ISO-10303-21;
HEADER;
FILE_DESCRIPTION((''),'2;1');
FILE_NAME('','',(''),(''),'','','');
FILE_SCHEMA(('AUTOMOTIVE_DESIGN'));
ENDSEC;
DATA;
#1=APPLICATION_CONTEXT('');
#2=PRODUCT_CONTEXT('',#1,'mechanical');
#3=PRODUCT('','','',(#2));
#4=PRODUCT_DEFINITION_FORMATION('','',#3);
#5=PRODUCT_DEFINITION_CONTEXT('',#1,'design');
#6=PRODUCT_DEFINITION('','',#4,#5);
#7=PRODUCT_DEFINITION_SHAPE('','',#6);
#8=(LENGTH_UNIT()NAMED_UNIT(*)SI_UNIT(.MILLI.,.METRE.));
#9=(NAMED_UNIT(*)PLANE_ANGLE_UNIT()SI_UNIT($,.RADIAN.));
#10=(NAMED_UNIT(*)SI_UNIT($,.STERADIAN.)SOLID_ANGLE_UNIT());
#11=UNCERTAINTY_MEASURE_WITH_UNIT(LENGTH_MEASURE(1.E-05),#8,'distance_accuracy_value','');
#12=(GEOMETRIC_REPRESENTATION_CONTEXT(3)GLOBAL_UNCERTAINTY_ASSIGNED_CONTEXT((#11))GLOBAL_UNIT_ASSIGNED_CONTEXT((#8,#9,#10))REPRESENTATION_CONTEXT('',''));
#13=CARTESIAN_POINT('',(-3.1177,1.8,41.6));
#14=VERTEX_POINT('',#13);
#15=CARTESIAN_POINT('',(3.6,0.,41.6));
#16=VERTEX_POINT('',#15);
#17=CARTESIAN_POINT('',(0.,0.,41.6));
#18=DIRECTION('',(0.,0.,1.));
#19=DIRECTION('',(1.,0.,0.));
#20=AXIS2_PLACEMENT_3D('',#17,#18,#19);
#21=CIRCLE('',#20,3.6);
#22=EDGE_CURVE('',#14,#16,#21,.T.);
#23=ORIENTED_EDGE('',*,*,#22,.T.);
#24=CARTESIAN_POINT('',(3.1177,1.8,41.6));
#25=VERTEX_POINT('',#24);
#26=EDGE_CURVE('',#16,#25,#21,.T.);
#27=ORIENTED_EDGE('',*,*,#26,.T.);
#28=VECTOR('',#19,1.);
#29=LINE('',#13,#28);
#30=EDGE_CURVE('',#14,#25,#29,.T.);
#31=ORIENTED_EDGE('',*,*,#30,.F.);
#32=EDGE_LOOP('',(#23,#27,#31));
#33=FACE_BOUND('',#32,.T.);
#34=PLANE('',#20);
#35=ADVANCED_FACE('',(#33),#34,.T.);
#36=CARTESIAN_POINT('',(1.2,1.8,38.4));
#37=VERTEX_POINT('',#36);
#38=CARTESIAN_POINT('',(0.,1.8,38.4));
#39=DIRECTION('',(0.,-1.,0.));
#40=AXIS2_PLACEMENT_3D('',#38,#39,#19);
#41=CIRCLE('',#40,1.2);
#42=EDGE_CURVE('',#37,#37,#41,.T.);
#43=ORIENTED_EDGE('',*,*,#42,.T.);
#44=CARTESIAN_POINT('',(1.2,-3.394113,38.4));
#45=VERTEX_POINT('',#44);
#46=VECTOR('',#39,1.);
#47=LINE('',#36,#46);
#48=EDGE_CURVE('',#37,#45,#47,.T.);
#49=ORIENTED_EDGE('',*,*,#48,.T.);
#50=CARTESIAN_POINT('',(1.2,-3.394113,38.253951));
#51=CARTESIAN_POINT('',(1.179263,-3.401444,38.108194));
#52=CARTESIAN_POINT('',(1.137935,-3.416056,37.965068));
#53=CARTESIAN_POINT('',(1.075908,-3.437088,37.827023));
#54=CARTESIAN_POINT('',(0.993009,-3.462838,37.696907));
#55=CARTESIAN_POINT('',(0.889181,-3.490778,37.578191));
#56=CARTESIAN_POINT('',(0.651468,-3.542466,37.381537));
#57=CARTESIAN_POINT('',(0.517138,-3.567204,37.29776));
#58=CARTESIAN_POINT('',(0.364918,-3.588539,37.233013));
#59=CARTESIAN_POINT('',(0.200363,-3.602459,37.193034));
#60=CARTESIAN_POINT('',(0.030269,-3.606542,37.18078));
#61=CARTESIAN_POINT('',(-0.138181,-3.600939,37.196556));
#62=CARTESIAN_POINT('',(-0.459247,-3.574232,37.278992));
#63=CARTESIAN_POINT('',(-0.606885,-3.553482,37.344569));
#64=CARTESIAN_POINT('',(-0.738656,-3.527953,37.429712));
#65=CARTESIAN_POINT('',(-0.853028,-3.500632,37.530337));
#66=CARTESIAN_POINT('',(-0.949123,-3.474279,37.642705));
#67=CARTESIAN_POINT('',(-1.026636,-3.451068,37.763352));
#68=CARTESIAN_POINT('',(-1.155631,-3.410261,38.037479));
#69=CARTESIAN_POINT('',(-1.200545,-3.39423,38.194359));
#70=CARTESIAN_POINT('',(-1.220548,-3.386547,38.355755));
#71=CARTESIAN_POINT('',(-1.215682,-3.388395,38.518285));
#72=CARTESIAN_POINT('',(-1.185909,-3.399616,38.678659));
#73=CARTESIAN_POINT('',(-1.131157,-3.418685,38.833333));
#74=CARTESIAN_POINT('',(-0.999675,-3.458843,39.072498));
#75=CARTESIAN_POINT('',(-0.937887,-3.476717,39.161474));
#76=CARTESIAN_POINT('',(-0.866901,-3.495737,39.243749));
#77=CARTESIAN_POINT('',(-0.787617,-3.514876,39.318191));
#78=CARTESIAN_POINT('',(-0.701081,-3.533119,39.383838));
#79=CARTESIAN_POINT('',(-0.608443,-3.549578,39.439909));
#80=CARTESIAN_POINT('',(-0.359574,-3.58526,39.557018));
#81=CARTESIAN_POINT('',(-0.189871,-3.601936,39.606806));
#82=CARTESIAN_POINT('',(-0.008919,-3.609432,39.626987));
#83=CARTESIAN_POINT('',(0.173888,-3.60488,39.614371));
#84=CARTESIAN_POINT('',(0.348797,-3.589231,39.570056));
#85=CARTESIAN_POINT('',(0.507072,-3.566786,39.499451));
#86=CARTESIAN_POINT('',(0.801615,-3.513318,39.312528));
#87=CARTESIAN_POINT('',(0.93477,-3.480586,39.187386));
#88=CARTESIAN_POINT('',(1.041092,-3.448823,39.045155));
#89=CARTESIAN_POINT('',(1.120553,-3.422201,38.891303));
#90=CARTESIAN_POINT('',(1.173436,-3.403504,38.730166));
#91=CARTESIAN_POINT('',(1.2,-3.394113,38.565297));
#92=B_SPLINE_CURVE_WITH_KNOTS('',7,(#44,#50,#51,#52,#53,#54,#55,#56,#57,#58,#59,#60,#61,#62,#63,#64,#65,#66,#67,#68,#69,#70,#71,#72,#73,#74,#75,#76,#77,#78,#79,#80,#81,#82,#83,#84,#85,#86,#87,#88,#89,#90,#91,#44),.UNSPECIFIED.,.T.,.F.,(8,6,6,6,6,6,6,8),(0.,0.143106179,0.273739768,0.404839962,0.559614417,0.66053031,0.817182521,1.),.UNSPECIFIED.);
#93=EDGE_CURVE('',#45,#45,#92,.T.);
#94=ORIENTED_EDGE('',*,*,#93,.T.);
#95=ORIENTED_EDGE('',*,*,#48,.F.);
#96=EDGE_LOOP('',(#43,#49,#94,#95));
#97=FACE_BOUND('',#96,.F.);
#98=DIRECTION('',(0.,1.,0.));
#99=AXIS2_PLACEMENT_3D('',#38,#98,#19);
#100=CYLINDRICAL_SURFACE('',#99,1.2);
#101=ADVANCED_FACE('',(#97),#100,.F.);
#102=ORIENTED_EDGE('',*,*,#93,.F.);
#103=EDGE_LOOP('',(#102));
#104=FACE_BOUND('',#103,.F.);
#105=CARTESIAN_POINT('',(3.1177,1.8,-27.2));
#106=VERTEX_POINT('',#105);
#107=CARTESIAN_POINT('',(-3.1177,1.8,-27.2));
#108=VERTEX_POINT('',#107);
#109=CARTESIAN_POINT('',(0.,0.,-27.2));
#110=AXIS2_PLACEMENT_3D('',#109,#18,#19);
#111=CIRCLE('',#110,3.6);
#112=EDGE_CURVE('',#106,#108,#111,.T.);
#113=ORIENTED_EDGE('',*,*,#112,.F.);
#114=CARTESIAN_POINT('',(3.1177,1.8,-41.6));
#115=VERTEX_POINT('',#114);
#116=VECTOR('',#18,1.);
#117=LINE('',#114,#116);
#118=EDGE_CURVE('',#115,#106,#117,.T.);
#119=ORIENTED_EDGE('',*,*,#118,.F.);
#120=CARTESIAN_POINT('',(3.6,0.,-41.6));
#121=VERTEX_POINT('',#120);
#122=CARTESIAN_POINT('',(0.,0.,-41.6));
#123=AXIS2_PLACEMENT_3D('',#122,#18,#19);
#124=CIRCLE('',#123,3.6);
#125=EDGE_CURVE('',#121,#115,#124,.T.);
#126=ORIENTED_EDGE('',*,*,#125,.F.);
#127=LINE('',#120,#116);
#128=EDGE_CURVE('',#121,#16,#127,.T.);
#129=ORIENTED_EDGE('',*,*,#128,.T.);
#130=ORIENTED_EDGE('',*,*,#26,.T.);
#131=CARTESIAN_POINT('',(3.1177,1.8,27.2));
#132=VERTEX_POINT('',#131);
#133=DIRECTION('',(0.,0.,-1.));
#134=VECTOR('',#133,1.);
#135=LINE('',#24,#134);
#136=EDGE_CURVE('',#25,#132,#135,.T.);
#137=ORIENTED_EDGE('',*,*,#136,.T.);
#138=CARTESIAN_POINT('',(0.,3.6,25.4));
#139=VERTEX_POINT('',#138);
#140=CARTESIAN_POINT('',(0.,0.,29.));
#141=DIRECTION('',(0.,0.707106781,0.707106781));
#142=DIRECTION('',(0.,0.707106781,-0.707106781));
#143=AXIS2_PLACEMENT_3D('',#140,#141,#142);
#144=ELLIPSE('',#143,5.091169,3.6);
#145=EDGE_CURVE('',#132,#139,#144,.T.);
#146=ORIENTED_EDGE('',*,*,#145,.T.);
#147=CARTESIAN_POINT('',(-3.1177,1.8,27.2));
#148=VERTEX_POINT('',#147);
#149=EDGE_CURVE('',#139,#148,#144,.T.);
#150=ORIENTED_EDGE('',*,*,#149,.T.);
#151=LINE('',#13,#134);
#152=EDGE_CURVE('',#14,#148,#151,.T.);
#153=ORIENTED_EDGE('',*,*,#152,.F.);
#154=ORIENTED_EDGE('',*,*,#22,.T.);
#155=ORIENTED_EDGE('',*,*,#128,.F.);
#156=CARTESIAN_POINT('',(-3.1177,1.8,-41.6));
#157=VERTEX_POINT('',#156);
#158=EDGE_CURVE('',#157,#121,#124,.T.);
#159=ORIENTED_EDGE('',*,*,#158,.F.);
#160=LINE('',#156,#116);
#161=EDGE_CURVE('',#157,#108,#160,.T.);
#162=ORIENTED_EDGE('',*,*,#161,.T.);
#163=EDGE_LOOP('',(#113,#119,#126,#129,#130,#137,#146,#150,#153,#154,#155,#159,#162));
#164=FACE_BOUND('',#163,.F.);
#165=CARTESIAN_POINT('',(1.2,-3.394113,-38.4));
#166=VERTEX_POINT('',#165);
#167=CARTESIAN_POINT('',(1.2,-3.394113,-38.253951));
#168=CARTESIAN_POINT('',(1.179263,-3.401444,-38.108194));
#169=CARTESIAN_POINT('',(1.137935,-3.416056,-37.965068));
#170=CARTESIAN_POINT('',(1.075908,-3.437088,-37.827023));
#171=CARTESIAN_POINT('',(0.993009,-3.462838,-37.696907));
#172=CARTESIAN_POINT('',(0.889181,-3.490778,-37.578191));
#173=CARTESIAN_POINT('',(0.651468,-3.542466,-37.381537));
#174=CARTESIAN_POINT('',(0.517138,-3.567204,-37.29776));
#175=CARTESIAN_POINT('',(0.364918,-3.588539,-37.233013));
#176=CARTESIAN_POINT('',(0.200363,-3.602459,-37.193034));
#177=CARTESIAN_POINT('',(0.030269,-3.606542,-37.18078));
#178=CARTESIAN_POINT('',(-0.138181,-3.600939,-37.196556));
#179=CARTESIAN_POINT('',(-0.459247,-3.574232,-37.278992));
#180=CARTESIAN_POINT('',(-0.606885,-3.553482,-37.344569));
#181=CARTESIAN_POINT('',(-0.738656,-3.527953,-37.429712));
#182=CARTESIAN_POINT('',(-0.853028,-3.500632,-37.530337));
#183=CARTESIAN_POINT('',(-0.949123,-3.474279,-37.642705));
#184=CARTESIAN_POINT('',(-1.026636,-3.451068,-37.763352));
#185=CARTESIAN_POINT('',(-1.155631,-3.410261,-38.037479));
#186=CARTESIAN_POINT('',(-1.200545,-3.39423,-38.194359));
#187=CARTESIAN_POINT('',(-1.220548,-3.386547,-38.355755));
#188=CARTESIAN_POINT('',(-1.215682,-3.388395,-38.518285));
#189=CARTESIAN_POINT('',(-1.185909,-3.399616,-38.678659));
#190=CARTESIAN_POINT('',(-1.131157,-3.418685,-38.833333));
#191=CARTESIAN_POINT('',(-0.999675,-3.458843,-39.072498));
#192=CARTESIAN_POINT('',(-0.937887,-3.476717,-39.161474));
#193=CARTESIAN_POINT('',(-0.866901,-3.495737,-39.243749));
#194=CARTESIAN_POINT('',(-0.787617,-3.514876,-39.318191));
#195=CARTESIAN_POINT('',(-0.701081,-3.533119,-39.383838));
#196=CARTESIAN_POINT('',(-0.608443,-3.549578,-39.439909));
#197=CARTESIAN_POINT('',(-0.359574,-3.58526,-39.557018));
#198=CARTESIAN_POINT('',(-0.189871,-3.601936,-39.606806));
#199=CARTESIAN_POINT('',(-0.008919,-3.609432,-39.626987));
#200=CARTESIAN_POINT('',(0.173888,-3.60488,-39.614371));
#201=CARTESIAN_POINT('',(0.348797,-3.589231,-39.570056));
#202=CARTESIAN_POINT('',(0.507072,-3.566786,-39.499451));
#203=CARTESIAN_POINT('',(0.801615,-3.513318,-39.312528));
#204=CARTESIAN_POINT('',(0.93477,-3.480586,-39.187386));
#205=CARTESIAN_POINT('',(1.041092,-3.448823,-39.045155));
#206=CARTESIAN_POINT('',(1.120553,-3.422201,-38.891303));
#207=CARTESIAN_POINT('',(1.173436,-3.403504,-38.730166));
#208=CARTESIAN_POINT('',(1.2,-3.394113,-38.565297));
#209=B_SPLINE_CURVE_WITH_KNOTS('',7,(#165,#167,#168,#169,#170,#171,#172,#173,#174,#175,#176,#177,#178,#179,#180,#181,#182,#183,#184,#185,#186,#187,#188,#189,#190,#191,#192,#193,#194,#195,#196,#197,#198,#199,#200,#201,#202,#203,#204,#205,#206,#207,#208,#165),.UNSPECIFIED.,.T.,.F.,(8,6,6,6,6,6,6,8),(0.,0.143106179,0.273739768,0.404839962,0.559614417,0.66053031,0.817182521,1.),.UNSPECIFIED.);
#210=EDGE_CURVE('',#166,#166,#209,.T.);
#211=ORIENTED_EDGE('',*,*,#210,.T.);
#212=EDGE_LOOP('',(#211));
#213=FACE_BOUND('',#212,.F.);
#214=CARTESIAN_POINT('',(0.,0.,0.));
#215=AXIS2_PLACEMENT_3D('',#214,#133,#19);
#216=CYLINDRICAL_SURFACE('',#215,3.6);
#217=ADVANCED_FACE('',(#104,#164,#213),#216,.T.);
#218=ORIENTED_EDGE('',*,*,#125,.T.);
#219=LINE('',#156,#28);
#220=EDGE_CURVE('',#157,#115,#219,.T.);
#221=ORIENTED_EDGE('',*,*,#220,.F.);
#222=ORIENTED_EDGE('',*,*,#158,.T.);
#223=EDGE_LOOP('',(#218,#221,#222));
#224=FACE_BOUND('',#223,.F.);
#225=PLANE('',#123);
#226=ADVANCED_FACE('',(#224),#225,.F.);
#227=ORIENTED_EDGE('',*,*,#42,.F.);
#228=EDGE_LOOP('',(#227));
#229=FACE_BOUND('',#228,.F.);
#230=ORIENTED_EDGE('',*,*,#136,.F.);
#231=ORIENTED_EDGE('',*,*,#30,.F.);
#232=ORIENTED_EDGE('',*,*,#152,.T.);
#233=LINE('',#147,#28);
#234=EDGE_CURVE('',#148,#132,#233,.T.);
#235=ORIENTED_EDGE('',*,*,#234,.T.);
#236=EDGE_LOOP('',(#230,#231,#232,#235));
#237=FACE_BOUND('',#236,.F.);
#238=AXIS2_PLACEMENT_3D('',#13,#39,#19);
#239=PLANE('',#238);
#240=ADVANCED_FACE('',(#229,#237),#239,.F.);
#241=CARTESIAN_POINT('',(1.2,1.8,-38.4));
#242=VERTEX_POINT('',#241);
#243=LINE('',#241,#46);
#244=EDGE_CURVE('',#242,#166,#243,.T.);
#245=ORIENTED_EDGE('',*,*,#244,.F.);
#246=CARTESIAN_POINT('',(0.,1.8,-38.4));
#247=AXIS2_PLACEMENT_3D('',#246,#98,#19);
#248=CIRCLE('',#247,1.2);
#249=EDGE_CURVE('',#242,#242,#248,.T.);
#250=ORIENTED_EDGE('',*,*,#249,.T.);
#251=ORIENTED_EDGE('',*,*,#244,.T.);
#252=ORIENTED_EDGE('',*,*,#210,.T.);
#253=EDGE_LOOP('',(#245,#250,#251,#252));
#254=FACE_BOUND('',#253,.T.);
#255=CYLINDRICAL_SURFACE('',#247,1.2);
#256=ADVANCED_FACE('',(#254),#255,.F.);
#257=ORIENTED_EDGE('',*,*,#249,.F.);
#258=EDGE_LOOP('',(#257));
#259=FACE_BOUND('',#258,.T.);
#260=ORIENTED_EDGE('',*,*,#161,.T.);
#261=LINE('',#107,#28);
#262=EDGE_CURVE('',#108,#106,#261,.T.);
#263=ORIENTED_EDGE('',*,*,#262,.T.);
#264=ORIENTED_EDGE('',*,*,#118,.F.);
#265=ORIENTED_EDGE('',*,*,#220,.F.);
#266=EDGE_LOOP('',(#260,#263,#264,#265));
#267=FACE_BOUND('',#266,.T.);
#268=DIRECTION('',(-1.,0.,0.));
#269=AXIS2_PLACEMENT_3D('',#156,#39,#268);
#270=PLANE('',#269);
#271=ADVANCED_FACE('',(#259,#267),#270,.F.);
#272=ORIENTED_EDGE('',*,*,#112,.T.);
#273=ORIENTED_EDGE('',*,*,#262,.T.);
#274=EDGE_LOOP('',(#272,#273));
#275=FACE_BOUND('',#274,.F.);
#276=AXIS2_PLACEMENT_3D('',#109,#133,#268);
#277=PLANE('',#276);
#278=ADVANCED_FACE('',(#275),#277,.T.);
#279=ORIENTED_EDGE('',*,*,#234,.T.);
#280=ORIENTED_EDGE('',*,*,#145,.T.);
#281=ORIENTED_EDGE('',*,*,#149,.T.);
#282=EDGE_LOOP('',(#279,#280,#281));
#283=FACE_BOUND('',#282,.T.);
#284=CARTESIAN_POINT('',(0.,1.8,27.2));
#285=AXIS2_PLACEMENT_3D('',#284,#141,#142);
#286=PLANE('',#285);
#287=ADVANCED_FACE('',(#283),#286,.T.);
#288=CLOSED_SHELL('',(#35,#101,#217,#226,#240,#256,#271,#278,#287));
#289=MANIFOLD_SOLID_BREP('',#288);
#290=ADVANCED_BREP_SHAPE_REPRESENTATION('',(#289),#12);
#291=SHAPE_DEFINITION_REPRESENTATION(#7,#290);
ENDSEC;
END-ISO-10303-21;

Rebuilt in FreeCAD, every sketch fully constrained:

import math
import FreeCAD as App
import Part
import Sketcher


def add_polygon(sketch, points):
    """Adds a closed chain of lines whose ends are joined by coincident constraints."""
    first, n = sketch.GeometryCount, len(points)
    for a, b in zip(points, points[1:] + points[:1]):
        sketch.addGeometry(Part.LineSegment(App.Vector(*a, 0), App.Vector(*b, 0)), False)
    for i in range(n):
        sketch.addConstraint(Sketcher.Constraint("Coincident", first + i, 2, first + (i + 1) % n, 1))

doc = App.newDocument("Part")
body = doc.addObject("PartDesign::Body", "Body")

# Sketch on XY plane
sketch1 = body.newObject("Sketcher::SketchObject", "Sketch")
sketch1.AttachmentSupport = (doc.getObject("XY_Plane"), [""])
sketch1.MapMode = "FlatFace"
sketch1.addGeometry(Part.Circle(App.Vector(0, 0, 0), App.Vector(0, 0, 1), 3.6), False)
sketch1.addConstraint(Sketcher.Constraint("Coincident", 0, 3, -1, 1))
sketch1.addConstraint(Sketcher.Constraint("Diameter", 0, 7.2))
pad1 = body.newObject("PartDesign::Pad", "Pad")
pad1.Profile = sketch1
pad1.Length = 83.2
pad1.Midplane = True

# Sketch on XY plane
sketch2 = body.newObject("Sketcher::SketchObject", "Sketch001")
sketch2.AttachmentSupport = (doc.getObject("XY_Plane"), [""])
sketch2.MapMode = "FlatFace"
sketch2.AttachmentOffset = App.Placement(App.Vector(0, 0, 41.6), App.Rotation())
sketch2.addGeometry(Part.LineSegment(App.Vector(-3.1, 1.8, 0), App.Vector(3.1, 1.8, 0)), False)
sketch2.addGeometry(Part.ArcOfCircle(Part.Circle(App.Vector(0, 0, 0), App.Vector(0, 0, 1), 3.6), math.radians(30), math.radians(150)), False)
sketch2.addConstraint(Sketcher.Constraint("Coincident", 0, 1, 1, 2))
sketch2.addConstraint(Sketcher.Constraint("Coincident", 1, 1, 0, 2))
sketch2.addConstraint(Sketcher.Constraint("Horizontal", 0))
sketch2.addConstraint(Sketcher.Constraint("Coincident", 1, 3, -1, 1))
sketch2.addConstraint(Sketcher.Constraint("DistanceY", -1, 1, 0, 1, 1.8))
sketch2.addConstraint(Sketcher.Constraint("Radius", 1, 3.6))
pocket1 = body.newObject("PartDesign::Pocket", "Pocket")
pocket1.Profile = sketch2
pocket1.Length = 14.4

# Sketch on XZ plane
sketch3 = body.newObject("Sketcher::SketchObject", "Sketch002")
sketch3.AttachmentSupport = (doc.getObject("XZ_Plane"), [""])
sketch3.MapMode = "FlatFace"
sketch3.AttachmentOffset = App.Placement(App.Vector(0, 0, -1.8), App.Rotation())
sketch3.addGeometry(Part.Circle(App.Vector(0, 38.4, 0), App.Vector(0, 0, 1), 1.2), False)
sketch3.addConstraint(Sketcher.Constraint("PointOnObject", 0, 3, -2))
sketch3.addConstraint(Sketcher.Constraint("Diameter", 0, 2.4))
sketch3.addConstraint(Sketcher.Constraint("DistanceY", -1, 1, 0, 3, 38.4))
pocket2 = body.newObject("PartDesign::Pocket", "Pocket001")
pocket2.Profile = sketch3
pocket2.Type = "ThroughAll"
pocket2.Reversed = True
doc.recompute()

mirrored = body.newObject("PartDesign::Mirrored", "Mirrored")
mirrored.Originals = [pocket1, pocket2]
mirrored.MirrorPlane = (doc.getObject("XY_Plane"), [""])
body.Tip = mirrored

# Sketch on YZ plane
sketch4 = body.newObject("Sketcher::SketchObject", "Sketch003")
sketch4.AttachmentSupport = (doc.getObject("YZ_Plane"), [""])
sketch4.MapMode = "FlatFace"
add_polygon(sketch4, [(3.6, 27.2), (1.8, 27.2), (3.6, 25.4)])  # lines 0-2
sketch4.addConstraint(Sketcher.Constraint("Horizontal", 0))
sketch4.addConstraint(Sketcher.Constraint("Vertical", 2))
sketch4.addConstraint(Sketcher.Constraint("Equal", 0, 2))
sketch4.addConstraint(Sketcher.Constraint("DistanceX", 0, 2, 0, 1, 1.8))
sketch4.addConstraint(Sketcher.Constraint("DistanceX", -1, 1, 0, 2, 1.8))
sketch4.addConstraint(Sketcher.Constraint("DistanceY", -1, 1, 0, 2, 27.2))
pocket3 = body.newObject("PartDesign::Pocket", "Pocket002")
pocket3.Profile = sketch4
pocket3.Type = "ThroughAll"
pocket3.Midplane = True

doc.recompute()
